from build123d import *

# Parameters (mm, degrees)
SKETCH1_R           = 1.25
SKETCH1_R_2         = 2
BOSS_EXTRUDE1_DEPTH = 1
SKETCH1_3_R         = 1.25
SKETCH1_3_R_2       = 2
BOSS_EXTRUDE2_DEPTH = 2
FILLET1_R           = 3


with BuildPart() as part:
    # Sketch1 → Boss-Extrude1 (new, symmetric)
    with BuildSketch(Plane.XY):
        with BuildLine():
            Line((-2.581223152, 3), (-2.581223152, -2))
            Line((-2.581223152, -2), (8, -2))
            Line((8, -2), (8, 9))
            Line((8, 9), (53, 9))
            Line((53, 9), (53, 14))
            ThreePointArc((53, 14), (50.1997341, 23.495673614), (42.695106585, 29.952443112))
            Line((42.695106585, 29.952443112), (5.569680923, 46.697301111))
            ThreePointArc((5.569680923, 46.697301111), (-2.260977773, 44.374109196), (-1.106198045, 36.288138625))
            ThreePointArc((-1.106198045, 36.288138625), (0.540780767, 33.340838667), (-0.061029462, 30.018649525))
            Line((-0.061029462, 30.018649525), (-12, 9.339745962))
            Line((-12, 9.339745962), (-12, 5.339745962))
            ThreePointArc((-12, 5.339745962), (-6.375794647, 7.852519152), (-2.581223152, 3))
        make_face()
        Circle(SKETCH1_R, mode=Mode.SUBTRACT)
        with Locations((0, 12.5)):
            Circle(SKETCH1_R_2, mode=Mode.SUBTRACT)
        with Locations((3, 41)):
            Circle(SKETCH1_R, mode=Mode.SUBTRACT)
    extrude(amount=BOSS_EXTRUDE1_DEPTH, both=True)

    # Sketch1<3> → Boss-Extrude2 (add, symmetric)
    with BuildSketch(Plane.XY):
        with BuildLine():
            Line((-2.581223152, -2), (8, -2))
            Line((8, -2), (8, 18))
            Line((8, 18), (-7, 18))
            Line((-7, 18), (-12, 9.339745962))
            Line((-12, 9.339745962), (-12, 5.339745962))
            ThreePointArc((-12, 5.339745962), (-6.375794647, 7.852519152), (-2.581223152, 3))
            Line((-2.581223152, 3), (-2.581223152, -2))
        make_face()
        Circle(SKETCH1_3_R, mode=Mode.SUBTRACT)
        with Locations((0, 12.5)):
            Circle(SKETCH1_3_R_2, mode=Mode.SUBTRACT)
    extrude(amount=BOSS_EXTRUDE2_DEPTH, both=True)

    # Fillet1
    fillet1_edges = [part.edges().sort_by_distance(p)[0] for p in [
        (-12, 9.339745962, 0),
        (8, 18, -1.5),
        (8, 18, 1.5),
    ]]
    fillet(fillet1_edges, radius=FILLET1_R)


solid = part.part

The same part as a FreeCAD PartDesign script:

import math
import FreeCAD as App
import Part
import Sketcher

V = App.Vector
Q = App.Units.Quantity


def edges_at(feature, points):
    """Names of the edges that pass closest to the given points."""
    edges = feature.Shape.Edges
    near = lambda p: min(range(len(edges)), key=lambda i: edges[i].distToShape(Part.Vertex(*p))[0])
    return sorted({f"Edge{near(p) + 1}" for p in points})

doc = App.newDocument("Part")
body = doc.addObject("PartDesign::Body", "Body")

# Sketch on XY plane
sketch1 = body.newObject("Sketcher::SketchObject", "Sketch")
sketch1.AttachmentSupport = (doc.getObject("XY_Plane"), [""])
sketch1.MapMode = "FlatFace"
sketch1.addGeometry([
    Part.LineSegment(V(-2.581223, 3, 0), V(-2.581223, -2, 0)),  # 0
    Part.LineSegment(V(-2.581223, -2, 0), V(8, -2, 0)),  # 1
    Part.LineSegment(V(8, -2, 0), V(8, 9, 0)),  # 2
    Part.LineSegment(V(8, 9, 0), V(53, 9, 0)),  # 3
    Part.LineSegment(V(53, 9, 0), V(53, 14, 0)),  # 4
    Part.ArcOfCircle(Part.Circle(V(35.5, 14, 0), V(0, 0, 1), 17.5), math.radians(0), math.radians(65.72297)),  # 5
    Part.LineSegment(V(42.695107, 29.952443, 0), V(5.569681, 46.697301, 0)),  # 6
    Part.ArcOfCircle(Part.Circle(V(3, 41, 0), V(0, 0, 1), 6.25), math.radians(65.72297), math.radians(228.929157)),  # 7
    Part.ArcOfCircle(Part.Circle(V(-4.391156, 32.51865, 0), V(0, 0, 1), 5), math.radians(-30), math.radians(48.929157)),  # 8
    Part.LineSegment(V(-0.061029, 30.01865, 0), V(-12, 9.339746, 0)),  # 9
    Part.LineSegment(V(-12, 9.339746, 0), V(-12, 5.339746, 0)),  # 10
    Part.ArcOfCircle(Part.Circle(V(-7.581223, 3, 0), V(0, 0, 1), 5), math.radians(0), math.radians(152.098744)),  # 11
    Part.Circle(V(0, 0, 0), V(0, 0, 1), 1.25),  # 12
    Part.Circle(V(0, 12.5, 0), V(0, 0, 1), 2),  # 13
    Part.Circle(V(3, 41, 0), V(0, 0, 1), 1.25),  # 14
], False)
sketch1.addConstraint([
    Sketcher.Constraint("Coincident", 0, 2, 1, 1),
    Sketcher.Constraint("Coincident", 1, 2, 2, 1),
    Sketcher.Constraint("Coincident", 2, 2, 3, 1),
    Sketcher.Constraint("Coincident", 3, 2, 4, 1),
    Sketcher.Constraint("Tangent", 4, 2, 5, 1),
    Sketcher.Constraint("Tangent", 5, 2, 6, 1),
    Sketcher.Constraint("Tangent", 6, 2, 7, 1),
    Sketcher.Constraint("Tangent", 7, 2, 8, 2),
    Sketcher.Constraint("Tangent", 8, 1, 9, 1),
    Sketcher.Constraint("Coincident", 9, 2, 10, 1),
    Sketcher.Constraint("Coincident", 10, 2, 11, 2),
    Sketcher.Constraint("Tangent", 11, 1, 0, 1),
    Sketcher.Constraint("Vertical", 0),
    Sketcher.Constraint("Horizontal", 1),
    Sketcher.Constraint("Vertical", 2),
    Sketcher.Constraint("Horizontal", 3),
    Sketcher.Constraint("Vertical", 4),
    Sketcher.Constraint("Vertical", 10),
    Sketcher.Constraint("Coincident", 12, 3, -1, 1),
    Sketcher.Constraint("Coincident", 14, 3, 7, 3),
    Sketcher.Constraint("Equal", 8, 11),
    Sketcher.Constraint("Equal", 12, 14),
    Sketcher.Constraint("PointOnObject", 13, 3, -2),
    Sketcher.Constraint("Equal", 0, 4),
    Sketcher.Constraint("Diameter", 13, Q("4 mm")),
    Sketcher.Constraint("Radius", 8, Q("5 mm")),
    Sketcher.Constraint("Diameter", 12, Q("2.5 mm")),
    Sketcher.Constraint("Radius", 5, Q("17.5 mm")),
    Sketcher.Constraint("DistanceX", 3, 1, 3, 2, Q("45 mm")),
    Sketcher.Constraint("DistanceY", 0, 2, 0, 1, Q("5 mm")),
    Sketcher.Constraint("DistanceY", 2, 1, 2, 2, Q("11 mm")),
    Sketcher.Constraint("DistanceY", 10, 2, 10, 1, Q("4 mm")),
    Sketcher.Constraint("Angle", 9, Q("-120 deg")),
    Sketcher.Constraint("Radius", 7, Q("6.25 mm")),
    Sketcher.Constraint("DistanceY", -1, 1, 5, 3, Q("14 mm")),
    Sketcher.Constraint("DistanceX", -1, 1, 7, 3, Q("3 mm")),
    Sketcher.Constraint("DistanceY", -1, 1, 7, 3, Q("41 mm")),
    Sketcher.Constraint("DistanceX", -1, 1, 1, 2, Q("8 mm")),
    Sketcher.Constraint("DistanceX", 9, 2, -1, 1, Q("12 mm")),
    Sketcher.Constraint("DistanceY", -1, 1, 13, 3, Q("12.5 mm")),
    Sketcher.Constraint("DistanceX", 7, 2, -1, 1, Q("1.106198 mm")),
])
pad1 = body.newObject("PartDesign::Pad", "Pad")
pad1.Profile = sketch1
pad1.Length = 2
pad1.Midplane = True

# Sketch on XY plane
sketch2 = body.newObject("Sketcher::SketchObject", "Sketch001")
sketch2.AttachmentSupport = (doc.getObject("XY_Plane"), [""])
sketch2.MapMode = "FlatFace"
sketch2.addGeometry([
    Part.LineSegment(V(-2.581223, -2, 0), V(8, -2, 0)),  # 0
    Part.LineSegment(V(8, -2, 0), V(8, 18, 0)),  # 1
    Part.LineSegment(V(8, 18, 0), V(-7, 18, 0)),  # 2
    Part.LineSegment(V(-7, 18, 0), V(-12, 9.339746, 0)),  # 3
    Part.LineSegment(V(-12, 9.339746, 0), V(-12, 5.339746, 0)),  # 4
    Part.ArcOfCircle(Part.Circle(V(-7.581223, 3, 0), V(0, 0, 1), 5), math.radians(0), math.radians(152.098744)),  # 5
    Part.LineSegment(V(-2.581223, 3, 0), V(-2.581223, -2, 0)),  # 6
    Part.Circle(V(0, 0, 0), V(0, 0, 1), 1.25),  # 7
    Part.Circle(V(0, 12.5, 0), V(0, 0, 1), 2),  # 8
], False)
sketch2.addConstraint([
    Sketcher.Constraint("Coincident", 0, 2, 1, 1),
    Sketcher.Constraint("Coincident", 1, 2, 2, 1),
    Sketcher.Constraint("Coincident", 2, 2, 3, 1),
    Sketcher.Constraint("Coincident", 3, 2, 4, 1),
    Sketcher.Constraint("Coincident", 4, 2, 5, 2),
    Sketcher.Constraint("Tangent", 5, 1, 6, 1),
    Sketcher.Constraint("Coincident", 6, 2, 0, 1),
    Sketcher.Constraint("Horizontal", 0),
    Sketcher.Constraint("Vertical", 1),
    Sketcher.Constraint("Horizontal", 2),
    Sketcher.Constraint("Vertical", 4),
    Sketcher.Constraint("Vertical", 6),
    Sketcher.Constraint("Coincident", 7, 3, -1, 1),
    Sketcher.Constraint("PointOnObject", 8, 3, -2),
    Sketcher.Constraint("Diameter", 8, Q("4 mm")),
    Sketcher.Constraint("Radius", 5, Q("5 mm")),
    Sketcher.Constraint("Diameter", 7, Q("2.5 mm")),
    Sketcher.Constraint("DistanceX", 2, 2, 2, 1, Q("15 mm")),
    Sketcher.Constraint("DistanceY", 1, 1, 1, 2, Q("20 mm")),
    Sketcher.Constraint("DistanceY", 4, 2, 4, 1, Q("4 mm")),
    Sketcher.Constraint("DistanceY", 6, 2, 6, 1, Q("5 mm")),
    Sketcher.Constraint("Angle", 3, Q("-120 deg")),
    Sketcher.Constraint("Distance", 3, Q("10 mm")),
    Sketcher.Constraint("DistanceY", -1, 1, 5, 3, Q("3 mm")),
    Sketcher.Constraint("DistanceX", -1, 1, 0, 2, Q("8 mm")),
    Sketcher.Constraint("DistanceY", -1, 1, 8, 3, Q("12.5 mm")),
])
pad2 = body.newObject("PartDesign::Pad", "Pad001")
pad2.Profile = sketch2
pad2.Length = 4
pad2.Midplane = True
doc.recompute()

fillet = body.newObject("PartDesign::Fillet", "Fillet")
fillet.Base = (pad2, edges_at(pad2, [(-12, 9.34, 0), (8, 18, -1.5), (8, 18, 1.5)]))
fillet.Radius = 3

doc.recompute()
